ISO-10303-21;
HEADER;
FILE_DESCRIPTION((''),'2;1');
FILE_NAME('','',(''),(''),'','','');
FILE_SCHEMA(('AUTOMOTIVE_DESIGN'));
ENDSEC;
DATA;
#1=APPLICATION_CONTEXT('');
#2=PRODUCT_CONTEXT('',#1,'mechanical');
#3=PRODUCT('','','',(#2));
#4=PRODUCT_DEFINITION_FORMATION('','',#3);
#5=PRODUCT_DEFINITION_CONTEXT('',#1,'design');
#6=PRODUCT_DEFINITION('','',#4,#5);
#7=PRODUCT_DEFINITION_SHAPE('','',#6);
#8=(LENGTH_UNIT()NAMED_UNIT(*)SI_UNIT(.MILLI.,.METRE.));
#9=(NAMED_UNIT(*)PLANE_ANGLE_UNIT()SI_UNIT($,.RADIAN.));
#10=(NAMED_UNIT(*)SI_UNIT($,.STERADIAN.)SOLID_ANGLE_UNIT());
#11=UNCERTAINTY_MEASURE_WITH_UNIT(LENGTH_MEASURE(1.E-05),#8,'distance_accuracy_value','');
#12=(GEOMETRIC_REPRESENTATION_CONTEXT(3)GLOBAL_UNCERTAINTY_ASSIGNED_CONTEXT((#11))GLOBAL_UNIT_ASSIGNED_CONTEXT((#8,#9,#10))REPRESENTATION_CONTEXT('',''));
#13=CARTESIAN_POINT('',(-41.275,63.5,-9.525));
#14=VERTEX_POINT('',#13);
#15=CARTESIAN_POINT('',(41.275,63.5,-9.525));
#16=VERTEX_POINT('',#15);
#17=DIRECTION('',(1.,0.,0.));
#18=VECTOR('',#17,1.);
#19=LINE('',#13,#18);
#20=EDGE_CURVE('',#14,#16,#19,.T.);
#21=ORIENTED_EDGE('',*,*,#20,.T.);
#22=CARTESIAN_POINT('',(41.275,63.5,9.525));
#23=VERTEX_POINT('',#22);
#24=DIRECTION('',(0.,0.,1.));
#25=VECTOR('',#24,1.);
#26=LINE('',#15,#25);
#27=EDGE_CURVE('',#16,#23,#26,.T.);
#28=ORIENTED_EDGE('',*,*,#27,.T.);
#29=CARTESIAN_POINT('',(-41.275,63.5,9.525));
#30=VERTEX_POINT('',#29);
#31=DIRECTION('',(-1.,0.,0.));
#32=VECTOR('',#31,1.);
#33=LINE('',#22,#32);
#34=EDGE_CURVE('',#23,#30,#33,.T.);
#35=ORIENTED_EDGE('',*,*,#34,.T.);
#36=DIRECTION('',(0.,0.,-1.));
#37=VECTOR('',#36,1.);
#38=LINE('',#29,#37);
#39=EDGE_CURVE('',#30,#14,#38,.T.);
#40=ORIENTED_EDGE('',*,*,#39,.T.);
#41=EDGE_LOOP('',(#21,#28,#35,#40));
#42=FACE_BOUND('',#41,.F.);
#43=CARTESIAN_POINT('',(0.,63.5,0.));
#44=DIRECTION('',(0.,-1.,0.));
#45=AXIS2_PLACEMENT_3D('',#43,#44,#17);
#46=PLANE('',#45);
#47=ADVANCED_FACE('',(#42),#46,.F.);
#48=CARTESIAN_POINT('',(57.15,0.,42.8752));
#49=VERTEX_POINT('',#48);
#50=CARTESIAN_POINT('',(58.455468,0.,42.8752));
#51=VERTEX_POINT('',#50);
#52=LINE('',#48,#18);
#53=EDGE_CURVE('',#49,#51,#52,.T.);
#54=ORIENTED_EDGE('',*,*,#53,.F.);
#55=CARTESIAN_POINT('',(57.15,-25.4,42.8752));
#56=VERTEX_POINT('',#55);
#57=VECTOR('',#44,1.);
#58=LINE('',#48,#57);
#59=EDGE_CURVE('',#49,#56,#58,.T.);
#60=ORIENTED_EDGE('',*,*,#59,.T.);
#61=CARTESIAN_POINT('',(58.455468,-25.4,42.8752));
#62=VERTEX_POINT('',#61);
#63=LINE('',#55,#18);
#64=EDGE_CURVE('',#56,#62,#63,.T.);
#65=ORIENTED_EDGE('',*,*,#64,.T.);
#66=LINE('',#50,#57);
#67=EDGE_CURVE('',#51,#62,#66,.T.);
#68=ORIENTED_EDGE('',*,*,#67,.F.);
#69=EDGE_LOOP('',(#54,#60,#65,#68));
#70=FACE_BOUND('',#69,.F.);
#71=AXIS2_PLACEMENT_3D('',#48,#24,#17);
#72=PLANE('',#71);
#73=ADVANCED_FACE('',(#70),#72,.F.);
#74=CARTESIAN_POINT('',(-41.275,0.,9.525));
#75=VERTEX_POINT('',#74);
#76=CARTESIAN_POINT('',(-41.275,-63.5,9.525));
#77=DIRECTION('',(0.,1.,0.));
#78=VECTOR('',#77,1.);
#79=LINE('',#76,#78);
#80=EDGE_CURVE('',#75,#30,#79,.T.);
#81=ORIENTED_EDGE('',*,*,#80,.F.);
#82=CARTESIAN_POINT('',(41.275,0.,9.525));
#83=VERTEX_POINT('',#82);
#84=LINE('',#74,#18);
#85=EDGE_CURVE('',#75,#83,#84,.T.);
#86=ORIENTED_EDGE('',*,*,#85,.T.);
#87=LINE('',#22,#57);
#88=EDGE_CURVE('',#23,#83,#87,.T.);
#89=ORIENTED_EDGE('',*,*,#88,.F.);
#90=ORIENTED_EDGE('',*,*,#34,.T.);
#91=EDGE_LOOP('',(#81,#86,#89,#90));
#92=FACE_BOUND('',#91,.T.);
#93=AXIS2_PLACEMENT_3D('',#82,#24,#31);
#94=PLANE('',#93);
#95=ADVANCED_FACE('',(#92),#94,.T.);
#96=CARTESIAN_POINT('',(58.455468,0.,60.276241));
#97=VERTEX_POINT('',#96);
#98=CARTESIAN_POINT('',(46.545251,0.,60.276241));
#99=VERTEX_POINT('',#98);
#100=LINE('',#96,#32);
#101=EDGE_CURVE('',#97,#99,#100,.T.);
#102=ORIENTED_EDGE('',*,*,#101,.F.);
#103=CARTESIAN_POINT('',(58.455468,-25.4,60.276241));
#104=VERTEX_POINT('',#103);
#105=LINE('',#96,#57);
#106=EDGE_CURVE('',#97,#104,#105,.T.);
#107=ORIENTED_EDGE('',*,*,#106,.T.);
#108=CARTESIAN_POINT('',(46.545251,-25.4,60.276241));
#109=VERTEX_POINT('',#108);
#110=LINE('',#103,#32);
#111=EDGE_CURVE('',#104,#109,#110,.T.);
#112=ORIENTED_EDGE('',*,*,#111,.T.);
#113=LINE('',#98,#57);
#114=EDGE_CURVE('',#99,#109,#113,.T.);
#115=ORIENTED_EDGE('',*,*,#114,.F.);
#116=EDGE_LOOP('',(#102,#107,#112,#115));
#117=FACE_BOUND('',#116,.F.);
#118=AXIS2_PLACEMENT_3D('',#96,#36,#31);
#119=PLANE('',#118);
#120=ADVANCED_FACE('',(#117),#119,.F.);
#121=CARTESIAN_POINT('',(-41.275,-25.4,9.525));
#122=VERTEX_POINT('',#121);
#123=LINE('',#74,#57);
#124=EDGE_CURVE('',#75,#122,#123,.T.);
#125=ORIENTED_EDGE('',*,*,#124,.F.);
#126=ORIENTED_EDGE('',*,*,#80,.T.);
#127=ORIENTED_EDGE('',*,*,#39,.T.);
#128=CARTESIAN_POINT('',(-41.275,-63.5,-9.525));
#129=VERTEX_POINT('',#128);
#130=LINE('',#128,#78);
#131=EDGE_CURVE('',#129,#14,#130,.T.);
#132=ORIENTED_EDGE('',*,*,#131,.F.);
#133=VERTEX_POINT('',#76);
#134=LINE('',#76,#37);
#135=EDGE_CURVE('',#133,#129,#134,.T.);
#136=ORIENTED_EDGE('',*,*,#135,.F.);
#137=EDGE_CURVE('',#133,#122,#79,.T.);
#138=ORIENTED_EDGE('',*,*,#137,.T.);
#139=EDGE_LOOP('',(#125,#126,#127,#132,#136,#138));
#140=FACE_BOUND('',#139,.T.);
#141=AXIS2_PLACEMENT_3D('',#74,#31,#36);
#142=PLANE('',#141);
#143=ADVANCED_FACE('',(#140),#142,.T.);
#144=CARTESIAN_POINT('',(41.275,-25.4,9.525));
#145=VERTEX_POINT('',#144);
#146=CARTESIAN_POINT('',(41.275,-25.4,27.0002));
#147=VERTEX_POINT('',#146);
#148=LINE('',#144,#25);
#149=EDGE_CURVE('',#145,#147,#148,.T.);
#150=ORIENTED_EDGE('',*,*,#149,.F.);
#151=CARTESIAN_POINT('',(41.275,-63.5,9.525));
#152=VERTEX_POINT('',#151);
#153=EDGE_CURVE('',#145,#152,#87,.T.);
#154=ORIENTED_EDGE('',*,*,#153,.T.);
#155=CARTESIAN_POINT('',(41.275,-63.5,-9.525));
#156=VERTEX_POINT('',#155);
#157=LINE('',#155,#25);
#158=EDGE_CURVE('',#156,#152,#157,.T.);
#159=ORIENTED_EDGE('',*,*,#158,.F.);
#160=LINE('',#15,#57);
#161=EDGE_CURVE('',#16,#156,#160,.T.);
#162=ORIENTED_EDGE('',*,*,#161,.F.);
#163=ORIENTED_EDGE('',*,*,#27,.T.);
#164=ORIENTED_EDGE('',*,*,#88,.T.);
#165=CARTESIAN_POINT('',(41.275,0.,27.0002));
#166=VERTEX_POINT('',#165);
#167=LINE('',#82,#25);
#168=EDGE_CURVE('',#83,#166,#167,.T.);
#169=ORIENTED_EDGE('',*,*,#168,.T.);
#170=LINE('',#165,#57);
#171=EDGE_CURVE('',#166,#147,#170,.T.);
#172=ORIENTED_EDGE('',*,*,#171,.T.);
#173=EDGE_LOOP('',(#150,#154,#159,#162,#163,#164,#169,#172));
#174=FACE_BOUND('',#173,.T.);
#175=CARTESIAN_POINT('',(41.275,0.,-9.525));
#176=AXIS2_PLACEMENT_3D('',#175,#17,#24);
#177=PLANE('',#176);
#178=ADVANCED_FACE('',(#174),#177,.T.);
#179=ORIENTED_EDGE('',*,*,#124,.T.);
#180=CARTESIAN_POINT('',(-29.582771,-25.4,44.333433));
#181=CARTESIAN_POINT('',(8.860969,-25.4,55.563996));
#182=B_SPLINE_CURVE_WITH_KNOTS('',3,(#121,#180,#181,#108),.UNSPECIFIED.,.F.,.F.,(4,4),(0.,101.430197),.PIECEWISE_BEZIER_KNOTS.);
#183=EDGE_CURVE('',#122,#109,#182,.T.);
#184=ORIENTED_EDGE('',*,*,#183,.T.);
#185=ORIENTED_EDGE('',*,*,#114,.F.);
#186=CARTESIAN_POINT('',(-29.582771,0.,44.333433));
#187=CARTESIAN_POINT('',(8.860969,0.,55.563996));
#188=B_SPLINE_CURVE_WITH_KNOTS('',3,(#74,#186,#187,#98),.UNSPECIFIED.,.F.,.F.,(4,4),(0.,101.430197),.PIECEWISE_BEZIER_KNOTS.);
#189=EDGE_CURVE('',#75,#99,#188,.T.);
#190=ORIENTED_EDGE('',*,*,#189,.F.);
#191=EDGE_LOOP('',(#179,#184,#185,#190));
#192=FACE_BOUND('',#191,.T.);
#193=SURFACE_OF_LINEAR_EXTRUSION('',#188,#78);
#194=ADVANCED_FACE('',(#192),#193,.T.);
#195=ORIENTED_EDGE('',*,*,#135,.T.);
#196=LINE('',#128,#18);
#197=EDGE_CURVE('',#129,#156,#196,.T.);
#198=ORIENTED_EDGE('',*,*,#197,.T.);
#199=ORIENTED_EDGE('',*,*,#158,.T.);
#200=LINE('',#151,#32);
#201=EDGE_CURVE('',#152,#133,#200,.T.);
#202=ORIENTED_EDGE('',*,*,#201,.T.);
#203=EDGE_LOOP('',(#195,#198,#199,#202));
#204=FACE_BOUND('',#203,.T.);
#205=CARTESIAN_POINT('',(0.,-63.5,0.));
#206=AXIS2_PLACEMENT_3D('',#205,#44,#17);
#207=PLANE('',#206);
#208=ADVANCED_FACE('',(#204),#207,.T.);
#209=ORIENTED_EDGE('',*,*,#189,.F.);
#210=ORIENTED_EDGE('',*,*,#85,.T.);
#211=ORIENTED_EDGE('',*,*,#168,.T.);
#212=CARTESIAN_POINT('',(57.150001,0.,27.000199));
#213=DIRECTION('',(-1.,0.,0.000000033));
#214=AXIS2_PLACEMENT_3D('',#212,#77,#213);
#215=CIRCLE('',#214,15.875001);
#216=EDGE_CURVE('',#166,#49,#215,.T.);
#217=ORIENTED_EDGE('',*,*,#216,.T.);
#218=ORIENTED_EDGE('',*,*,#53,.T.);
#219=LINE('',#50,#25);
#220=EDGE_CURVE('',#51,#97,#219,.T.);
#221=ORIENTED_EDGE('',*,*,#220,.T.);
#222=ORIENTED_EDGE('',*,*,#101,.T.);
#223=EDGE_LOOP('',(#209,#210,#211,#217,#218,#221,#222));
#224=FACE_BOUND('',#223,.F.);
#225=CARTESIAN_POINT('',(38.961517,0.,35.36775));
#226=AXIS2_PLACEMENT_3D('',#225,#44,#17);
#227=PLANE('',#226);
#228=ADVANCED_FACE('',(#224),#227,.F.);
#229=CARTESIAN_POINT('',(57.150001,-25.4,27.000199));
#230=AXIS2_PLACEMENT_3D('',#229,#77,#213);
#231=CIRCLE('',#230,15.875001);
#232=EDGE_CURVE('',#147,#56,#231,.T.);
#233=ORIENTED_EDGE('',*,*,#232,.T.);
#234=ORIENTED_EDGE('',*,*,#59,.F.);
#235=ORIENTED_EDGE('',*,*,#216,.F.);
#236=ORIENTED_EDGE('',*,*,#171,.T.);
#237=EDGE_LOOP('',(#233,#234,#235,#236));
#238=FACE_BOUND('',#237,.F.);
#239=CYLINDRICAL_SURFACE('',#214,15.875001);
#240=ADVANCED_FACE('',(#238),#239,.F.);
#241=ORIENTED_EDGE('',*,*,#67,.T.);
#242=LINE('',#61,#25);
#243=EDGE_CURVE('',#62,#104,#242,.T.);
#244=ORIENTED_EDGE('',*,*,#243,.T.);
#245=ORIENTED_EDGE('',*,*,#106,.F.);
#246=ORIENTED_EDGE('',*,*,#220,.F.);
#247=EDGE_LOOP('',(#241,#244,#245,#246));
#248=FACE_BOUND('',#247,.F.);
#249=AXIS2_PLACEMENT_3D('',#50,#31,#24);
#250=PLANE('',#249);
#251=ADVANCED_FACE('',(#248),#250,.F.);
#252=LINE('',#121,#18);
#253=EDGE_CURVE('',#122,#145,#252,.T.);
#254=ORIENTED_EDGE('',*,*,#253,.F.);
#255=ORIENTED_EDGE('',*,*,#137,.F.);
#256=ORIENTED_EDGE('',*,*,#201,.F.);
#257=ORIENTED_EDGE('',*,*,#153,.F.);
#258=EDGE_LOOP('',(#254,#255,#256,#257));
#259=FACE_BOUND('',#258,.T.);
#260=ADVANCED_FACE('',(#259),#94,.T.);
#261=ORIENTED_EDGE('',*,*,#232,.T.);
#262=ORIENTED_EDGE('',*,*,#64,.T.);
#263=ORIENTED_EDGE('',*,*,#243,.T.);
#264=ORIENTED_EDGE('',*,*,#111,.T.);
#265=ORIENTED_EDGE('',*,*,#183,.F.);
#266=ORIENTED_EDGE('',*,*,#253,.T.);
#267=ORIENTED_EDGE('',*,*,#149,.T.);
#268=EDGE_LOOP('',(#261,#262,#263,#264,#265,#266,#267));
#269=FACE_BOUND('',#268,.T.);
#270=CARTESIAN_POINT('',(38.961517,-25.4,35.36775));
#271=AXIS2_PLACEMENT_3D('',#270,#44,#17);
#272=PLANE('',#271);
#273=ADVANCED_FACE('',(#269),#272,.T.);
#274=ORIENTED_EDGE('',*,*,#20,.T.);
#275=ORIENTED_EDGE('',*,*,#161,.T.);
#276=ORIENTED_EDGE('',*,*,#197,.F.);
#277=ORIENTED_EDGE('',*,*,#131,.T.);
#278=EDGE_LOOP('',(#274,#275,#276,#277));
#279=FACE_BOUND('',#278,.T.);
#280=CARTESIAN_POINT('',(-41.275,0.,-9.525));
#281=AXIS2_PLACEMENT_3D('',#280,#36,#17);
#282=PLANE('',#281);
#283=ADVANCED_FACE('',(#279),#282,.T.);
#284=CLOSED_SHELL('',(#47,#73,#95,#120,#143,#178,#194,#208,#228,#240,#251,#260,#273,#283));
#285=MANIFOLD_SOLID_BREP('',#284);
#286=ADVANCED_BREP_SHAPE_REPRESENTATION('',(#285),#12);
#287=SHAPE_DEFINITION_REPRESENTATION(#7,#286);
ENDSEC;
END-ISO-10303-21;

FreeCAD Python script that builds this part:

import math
import FreeCAD as App
import Part
import Sketcher
from FreeCAD import Vector
Q = App.Units.Quantity

doc = App.newDocument("Part")
params = doc.addObject("Spreadsheet::Sheet", "Params")
for row, (alias, value) in enumerate([
    ("sketch1_width", "3.25 in"),
    ("sketch1_height", "0.75 in"),
    ("pad1_length", "5 in"),
    ("sketch2_radius", "0.625 in"),
    ("sketch2_width", "3.25 in"),
    ("sketch2_height", "0.688 in"),
    ("pad2_length", "1 in"),
], start=1):
    params.set(f"A{row}", alias)
    params.set(f"B{row}", "=" + value)
    params.setAlias(f"B{row}", alias)

body = doc.addObject("PartDesign::Body", "Body")

# Sketch on XZ plane
sketch1 = body.newObject("Sketcher::SketchObject", "Sketch")
sketch1.AttachmentSupport = (doc.getObject("XZ_Plane"), [""])
sketch1.MapMode = "FlatFace"
sketch1.addGeometry(Part.LineSegment(Vector(-41, -10, 0), Vector(41, -10, 0)), False)
sketch1.addGeometry(Part.LineSegment(Vector(41, -10, 0), Vector(41, 10, 0)), False)
sketch1.addGeometry(Part.LineSegment(Vector(41, 10, 0), Vector(-41, 10, 0)), False)
sketch1.addGeometry(Part.LineSegment(Vector(-41, 10, 0), Vector(-41, -10, 0)), False)
sketch1.addConstraint(Sketcher.Constraint("Coincident", 0, 2, 1, 1))
sketch1.addConstraint(Sketcher.Constraint("Coincident", 1, 2, 2, 1))
sketch1.addConstraint(Sketcher.Constraint("Coincident", 2, 2, 3, 1))
sketch1.addConstraint(Sketcher.Constraint("Coincident", 3, 2, 0, 1))
sketch1.addConstraint(Sketcher.Constraint("Horizontal", 0))
sketch1.addConstraint(Sketcher.Constraint("Vertical", 1))
sketch1.addConstraint(Sketcher.Constraint("Horizontal", 2))
sketch1.addConstraint(Sketcher.Constraint("Vertical", 3))
sketch1.addConstraint(Sketcher.Constraint("Symmetric", 0, 2, 2, 2, -1, 1))
sketch1.addConstraint(Sketcher.Constraint("DistanceX", 0, 1, 0, 2, Q("3.25 in")))
sketch1.addConstraint(Sketcher.Constraint("DistanceY", 1, 1, 1, 2, Q("0.75 in")))
sketch1.setExpression("Constraints[9]", "Params.sketch1_width")
sketch1.setExpression("Constraints[10]", "Params.sketch1_height")
pad1 = body.newObject("PartDesign::Pad", "Pad")
pad1.Profile = sketch1
pad1.setExpression("Length", "Params.pad1_length")
pad1.Midplane = True

# Sketch on XZ plane
sketch2 = body.newObject("Sketcher::SketchObject", "Sketch001")
sketch2.AttachmentSupport = (doc.getObject("XZ_Plane"), [""])
sketch2.MapMode = "FlatFace"
sketch2.addGeometry(Part.LineSegment(Vector(41.275, 9.525, 0), Vector(41.275, 27.0002, 0)), False)
sketch2.addGeometry(Part.ArcOfCircle(Part.Circle(Vector(57.150001, 27.000199, 0), Vector(0, 0, 1), 15.875001), math.radians(90.000002), math.radians(179.999998)), False)
sketch2.addGeometry(Part.LineSegment(Vector(57.15, 42.8752, 0), Vector(58.455468, 42.8752, 0)), False)
sketch2.addGeometry(Part.LineSegment(Vector(58.455468, 42.8752, 0), Vector(58.455468, 60.276241, 0)), False)
sketch2.addGeometry(Part.LineSegment(Vector(58.455468, 60.276241, 0), Vector(46.545251, 60.276241, 0)), False)
sketch2.addGeometry(Part.BSplineCurve([Vector(-41.275, 9.525, 0), Vector(-29.582771, 44.333433, 0), Vector(8.860969, 55.563996, 0), Vector(46.545251, 60.276241, 0)], [4, 4], [0, 101.430197], False, 3, [1, 1, 1, 1], False), False)
sketch2.addGeometry(Part.LineSegment(Vector(-41.275, 9.525, 0), Vector(41.275, 9.525, 0)), False)
sketch2.addConstraint(Sketcher.Constraint("Block", 5))
sketch2.addConstraint(Sketcher.Constraint("Tangent", 0, 2, 1, 2))
sketch2.addConstraint(Sketcher.Constraint("Tangent", 1, 1, 2, 1))
sketch2.addConstraint(Sketcher.Constraint("Coincident", 2, 2, 3, 1))
sketch2.addConstraint(Sketcher.Constraint("Coincident", 3, 2, 4, 1))
sketch2.addConstraint(Sketcher.Constraint("Coincident", 4, 2, 5, 2))
sketch2.addConstraint(Sketcher.Constraint("Coincident", 5, 1, 6, 1))
sketch2.addConstraint(Sketcher.Constraint("Coincident", 6, 2, 0, 1))
sketch2.addConstraint(Sketcher.Constraint("Vertical", 0))
sketch2.addConstraint(Sketcher.Constraint("Horizontal", 2))
sketch2.addConstraint(Sketcher.Constraint("Vertical", 3))
sketch2.addConstraint(Sketcher.Constraint("Horizontal", 4))
sketch2.addConstraint(Sketcher.Constraint("Horizontal", 6))
sketch2.addConstraint(Sketcher.Constraint("Radius", 1, Q("0.625 in")))
sketch2.addConstraint(Sketcher.Constraint("DistanceX", 6, 1, 6, 2, Q("3.25 in")))
sketch2.addConstraint(Sketcher.Constraint("DistanceY", 0, 1, 0, 2, Q("0.688 in")))
sketch2.addConstraint(Sketcher.Constraint("DistanceX", 2, 1, 2, 2, 1.305468))
sketch2.setExpression("Constraints[13]", "Params.sketch2_radius")
sketch2.setExpression("Constraints[14]", "Params.sketch2_width")
sketch2.setExpression("Constraints[15]", "Params.sketch2_height")
pad2 = body.newObject("PartDesign::Pad", "Pad001")
pad2.Profile = sketch2
pad2.setExpression("Length", "Params.pad2_length")

doc.recompute()
